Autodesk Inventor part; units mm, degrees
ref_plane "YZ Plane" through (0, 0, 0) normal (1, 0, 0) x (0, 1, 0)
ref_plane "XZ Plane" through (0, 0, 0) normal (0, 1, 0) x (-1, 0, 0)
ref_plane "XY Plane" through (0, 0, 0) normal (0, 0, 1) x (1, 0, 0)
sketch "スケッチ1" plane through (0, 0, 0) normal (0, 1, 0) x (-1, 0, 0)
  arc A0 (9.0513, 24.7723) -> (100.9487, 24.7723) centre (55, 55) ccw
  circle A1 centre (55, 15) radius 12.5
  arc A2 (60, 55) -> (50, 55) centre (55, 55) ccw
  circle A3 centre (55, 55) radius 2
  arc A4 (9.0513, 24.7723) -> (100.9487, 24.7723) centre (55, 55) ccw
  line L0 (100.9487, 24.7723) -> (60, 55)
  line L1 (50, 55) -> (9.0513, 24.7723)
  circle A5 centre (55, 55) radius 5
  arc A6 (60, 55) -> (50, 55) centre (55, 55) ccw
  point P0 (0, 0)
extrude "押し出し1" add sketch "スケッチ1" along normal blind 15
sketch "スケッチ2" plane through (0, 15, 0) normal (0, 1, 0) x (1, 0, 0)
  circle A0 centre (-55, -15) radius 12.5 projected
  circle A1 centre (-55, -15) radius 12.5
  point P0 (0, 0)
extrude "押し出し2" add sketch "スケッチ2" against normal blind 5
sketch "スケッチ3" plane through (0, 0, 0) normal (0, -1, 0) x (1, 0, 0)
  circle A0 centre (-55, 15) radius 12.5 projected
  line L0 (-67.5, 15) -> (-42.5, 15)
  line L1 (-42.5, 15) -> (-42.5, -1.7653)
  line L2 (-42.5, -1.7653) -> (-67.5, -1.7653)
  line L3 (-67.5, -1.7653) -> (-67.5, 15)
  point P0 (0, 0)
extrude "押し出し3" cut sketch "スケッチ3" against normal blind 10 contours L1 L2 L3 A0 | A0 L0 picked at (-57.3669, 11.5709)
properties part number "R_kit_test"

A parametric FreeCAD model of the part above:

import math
import FreeCAD as App
import Part
import Sketcher
from FreeCAD import Vector
Q = App.Units.Quantity

doc = App.newDocument("Part")
params = doc.addObject("Spreadsheet::Sheet", "Params")
for row, (alias, value) in enumerate([
    ("sketch1_diameter", "25 mm"),
    ("sketch1_diameter2", "4 mm"),
    ("sketch1_radius", "55 mm"),
    ("sketch1_radius2", "5 mm"),
    ("pad1_length", "15 mm"),
    ("sketch2_diameter", "25 mm"),
    ("pad2_length", "5 mm"),
    ("sketch3_width", "25 mm"),
    ("pocket1_length", "10 mm"),
], start=1):
    params.set(f"A{row}", alias)
    params.set(f"B{row}", "=" + value)
    params.setAlias(f"B{row}", alias)

body = doc.addObject("PartDesign::Body", "Body")

sketch1 = body.newObject("Sketcher::SketchObject", "Sketch")
sketch1.AttachmentSupport = (doc.getObject("XZ_Plane"), [""])
sketch1.MapMode = "FlatFace"
sketch1.addGeometry(Part.LineSegment(Vector(-50, 55, 0), Vector(-9.1, 24.8, 0)), False)
sketch1.addGeometry(Part.ArcOfCircle(Part.Circle(Vector(-55, 55, 0), Vector(0, 0, 1), 55), math.radians(-147), math.radians(-33)), False)
sketch1.addGeometry(Part.LineSegment(Vector(-100.9, 24.8, 0), Vector(-60, 55, 0)), False)
sketch1.addGeometry(Part.ArcOfCircle(Part.Circle(Vector(-55, 55, 0), Vector(0, 0, 1), 5), math.radians(0), math.radians(180)), False)
sketch1.addGeometry(Part.Circle(Vector(-55, 15, 0), Vector(0, 0, 1), 12.5), False)
sketch1.addGeometry(Part.Circle(Vector(-55, 55, 0), Vector(0, 0, 1), 2), False)
sketch1.addConstraint(Sketcher.Constraint("Coincident", 0, 2, 1, 2))
sketch1.addConstraint(Sketcher.Constraint("Coincident", 1, 1, 2, 1))
sketch1.addConstraint(Sketcher.Constraint("Coincident", 2, 2, 3, 2))
sketch1.addConstraint(Sketcher.Constraint("Coincident", 3, 1, 0, 1))
sketch1.addConstraint(Sketcher.Constraint("Coincident", 3, 3, 1, 3))
sketch1.addConstraint(Sketcher.Constraint("Coincident", 5, 3, 1, 3))
sketch1.addConstraint(Sketcher.Constraint("Horizontal", 0, 2, 1, 1))
sketch1.addConstraint(Sketcher.Constraint("Horizontal", 5, 3, 2, 2))
sketch1.addConstraint(Sketcher.Constraint("Horizontal", 2, 2, 3, 1))
sketch1.addConstraint(Sketcher.Constraint("Vertical", 3, 3, 4, 3))
sketch1.addConstraint(Sketcher.Constraint("Diameter", 4, Q("25 mm")))
sketch1.addConstraint(Sketcher.Constraint("Diameter", 5, Q("4 mm")))
sketch1.addConstraint(Sketcher.Constraint("Radius", 1, Q("55 mm")))
sketch1.addConstraint(Sketcher.Constraint("Radius", 3, Q("5 mm")))
sketch1.addConstraint(Sketcher.Constraint("DistanceX", 1, 3, -1, 1, Q("55 mm")))
sketch1.addConstraint(Sketcher.Constraint("DistanceY", -1, 1, 1, 3, Q("55 mm")))
sketch1.addConstraint(Sketcher.Constraint("DistanceY", -1, 1, 4, 3, Q("15 mm")))
sketch1.addConstraint(Sketcher.Constraint("Distance", 0, Q("50.897 mm")))
sketch1.setExpression("Constraints[10]", "Params.sketch1_diameter")
sketch1.setExpression("Constraints[11]", "Params.sketch1_diameter2")
sketch1.setExpression("Constraints[12]", "Params.sketch1_radius")
sketch1.setExpression("Constraints[13]", "Params.sketch1_radius2")
pad1 = body.newObject("PartDesign::Pad", "Pad")
pad1.Profile = sketch1
pad1.setExpression("Length", "Params.pad1_length")
pad1.Reversed = True

sketch2 = body.newObject("Sketcher::SketchObject", "Sketch001")
sketch2.AttachmentSupport = (doc.getObject("XZ_Plane"), [""])
sketch2.MapMode = "FlatFace"
sketch2.AttachmentOffset = App.Placement(Vector(0, 0, -15), App.Rotation())
sketch2.addGeometry(Part.Circle(Vector(-55, 15, 0), Vector(0, 0, 1), 12), False)
sketch2.addConstraint(Sketcher.Constraint("Diameter", 0, Q("25 mm")))
sketch2.addConstraint(Sketcher.Constraint("DistanceX", 0, 3, -1, 1, Q("55 mm")))
sketch2.addConstraint(Sketcher.Constraint("DistanceY", -1, 1, 0, 3, Q("15 mm")))
sketch2.setExpression("Constraints[0]", "Params.sketch2_diameter")
pad2 = body.newObject("PartDesign::Pad", "Pad001")
pad2.Profile = sketch2
pad2.setExpression("Length", "Params.pad2_length")

sketch3 = body.newObject("Sketcher::SketchObject", "Sketch002")
sketch3.AttachmentSupport = (doc.getObject("XZ_Plane"), [""])
sketch3.MapMode = "FlatFace"
sketch3.addGeometry(Part.LineSegment(Vector(-42, -2, 0), Vector(-42, 15, 0)), False)
sketch3.addGeometry(Part.LineSegment(Vector(-42, 15, 0), Vector(-68, 15, 0)), False)
sketch3.addGeometry(Part.LineSegment(Vector(-68, 15, 0), Vector(-68, -2, 0)), False)
sketch3.addGeometry(Part.LineSegment(Vector(-68, -2, 0), Vector(-42, -2, 0)), False)
sketch3.addConstraint(Sketcher.Constraint("Coincident", 0, 2, 1, 1))
sketch3.addConstraint(Sketcher.Constraint("Coincident", 1, 2, 2, 1))
sketch3.addConstraint(Sketcher.Constraint("Coincident", 2, 2, 3, 1))
sketch3.addConstraint(Sketcher.Constraint("Coincident", 3, 2, 0, 1))
sketch3.addConstraint(Sketcher.Constraint("Vertical", 0))
sketch3.addConstraint(Sketcher.Constraint("Horizontal", 1))
sketch3.addConstraint(Sketcher.Constraint("Vertical", 2))
sketch3.addConstraint(Sketcher.Constraint("Horizontal", 3))
sketch3.addConstraint(Sketcher.Constraint("DistanceX", 1, 2, 1, 1, Q("25 mm")))
sketch3.addConstraint(Sketcher.Constraint("DistanceY", -1, 1, 0, 2, Q("15 mm")))
sketch3.addConstraint(Sketcher.Constraint("DistanceX", 0, 2, -1, 1, Q("42.5 mm")))
sketch3.addConstraint(Sketcher.Constraint("DistanceY", 0, 1, 0, 2, Q("16.7653 mm")))
sketch3.setExpression("Constraints[8]", "Params.sketch3_width")
pocket1 = body.newObject("PartDesign::Pocket", "Pocket")
pocket1.Profile = sketch3
pocket1.setExpression("Length", "Params.pocket1_length")

doc.recompute()
